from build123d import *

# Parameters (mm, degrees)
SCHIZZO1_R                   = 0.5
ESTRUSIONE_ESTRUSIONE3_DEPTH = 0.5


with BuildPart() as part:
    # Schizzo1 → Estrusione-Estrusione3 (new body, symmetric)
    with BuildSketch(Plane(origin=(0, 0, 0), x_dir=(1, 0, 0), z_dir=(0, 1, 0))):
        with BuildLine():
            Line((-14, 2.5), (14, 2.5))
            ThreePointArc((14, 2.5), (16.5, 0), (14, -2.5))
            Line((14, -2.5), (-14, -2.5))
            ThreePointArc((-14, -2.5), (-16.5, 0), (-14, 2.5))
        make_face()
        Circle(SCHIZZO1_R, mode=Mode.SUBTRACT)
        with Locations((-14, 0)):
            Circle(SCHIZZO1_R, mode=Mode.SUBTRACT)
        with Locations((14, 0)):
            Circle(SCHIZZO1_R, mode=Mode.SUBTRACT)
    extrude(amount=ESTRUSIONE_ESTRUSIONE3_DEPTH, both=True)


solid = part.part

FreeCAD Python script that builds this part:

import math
import FreeCAD as App
import Part
import Sketcher

V = App.Vector

doc = App.newDocument("Part")
body = doc.addObject("PartDesign::Body", "Body")

# Sketch on XZ plane
sketch1 = body.newObject("Sketcher::SketchObject", "Sketch")
sketch1.AttachmentSupport = (doc.getObject("XZ_Plane"), [""])
sketch1.MapMode = "FlatFace"
sketch1.addGeometry(Part.LineSegment(V(14, -2.5, 0), V(-14, -2.5, 0)), False)
sketch1.addGeometry(Part.ArcOfCircle(Part.Circle(V(-14, 0, 0), V(0, 0, 1), 2.5), math.radians(90), math.radians(270)), False)
sketch1.addGeometry(Part.LineSegment(V(-14, 2.5, 0), V(14, 2.5, 0)), False)
sketch1.addGeometry(Part.ArcOfCircle(Part.Circle(V(14, 0, 0), V(0, 0, 1), 2.5), math.radians(-90), math.radians(90)), False)
sketch1.addGeometry(Part.Circle(V(14, 0, 0), V(0, 0, 1), 0.5), False)
sketch1.addGeometry(Part.Circle(V(0, 0, 0), V(0, 0, 1), 0.5), False)
sketch1.addGeometry(Part.Circle(V(-14, 0, 0), V(0, 0, 1), 0.5), False)
sketch1.addConstraint(Sketcher.Constraint("Tangent", 0, 2, 1, 2))
sketch1.addConstraint(Sketcher.Constraint("Tangent", 1, 1, 2, 1))
sketch1.addConstraint(Sketcher.Constraint("Tangent", 2, 2, 3, 2))
sketch1.addConstraint(Sketcher.Constraint("Tangent", 3, 1, 0, 1))
sketch1.addConstraint(Sketcher.Constraint("Horizontal", 0))
sketch1.addConstraint(Sketcher.Constraint("Horizontal", 2))
sketch1.addConstraint(Sketcher.Constraint("Coincident", 5, 3, -1, 1))
sketch1.addConstraint(Sketcher.Constraint("Coincident", 4, 3, 3, 3))
sketch1.addConstraint(Sketcher.Constraint("Coincident", 6, 3, 1, 3))
sketch1.addConstraint(Sketcher.Constraint("Equal", 4, 5))
sketch1.addConstraint(Sketcher.Constraint("Equal", 5, 6))
sketch1.addConstraint(Sketcher.Constraint("Symmetric", 1, 3, 3, 3, -1, 1))
sketch1.addConstraint(Sketcher.Constraint("Diameter", 4, 1.0))
sketch1.addConstraint(Sketcher.Constraint("Radius", 1, 2.5))
sketch1.addConstraint(Sketcher.Constraint("DistanceX", 0, 2, 0, 1, 28.0))
pad1 = body.newObject("PartDesign::Pad", "Pad")
pad1.Profile = sketch1
pad1.Length = 1
pad1.Midplane = True

doc.recompute()
